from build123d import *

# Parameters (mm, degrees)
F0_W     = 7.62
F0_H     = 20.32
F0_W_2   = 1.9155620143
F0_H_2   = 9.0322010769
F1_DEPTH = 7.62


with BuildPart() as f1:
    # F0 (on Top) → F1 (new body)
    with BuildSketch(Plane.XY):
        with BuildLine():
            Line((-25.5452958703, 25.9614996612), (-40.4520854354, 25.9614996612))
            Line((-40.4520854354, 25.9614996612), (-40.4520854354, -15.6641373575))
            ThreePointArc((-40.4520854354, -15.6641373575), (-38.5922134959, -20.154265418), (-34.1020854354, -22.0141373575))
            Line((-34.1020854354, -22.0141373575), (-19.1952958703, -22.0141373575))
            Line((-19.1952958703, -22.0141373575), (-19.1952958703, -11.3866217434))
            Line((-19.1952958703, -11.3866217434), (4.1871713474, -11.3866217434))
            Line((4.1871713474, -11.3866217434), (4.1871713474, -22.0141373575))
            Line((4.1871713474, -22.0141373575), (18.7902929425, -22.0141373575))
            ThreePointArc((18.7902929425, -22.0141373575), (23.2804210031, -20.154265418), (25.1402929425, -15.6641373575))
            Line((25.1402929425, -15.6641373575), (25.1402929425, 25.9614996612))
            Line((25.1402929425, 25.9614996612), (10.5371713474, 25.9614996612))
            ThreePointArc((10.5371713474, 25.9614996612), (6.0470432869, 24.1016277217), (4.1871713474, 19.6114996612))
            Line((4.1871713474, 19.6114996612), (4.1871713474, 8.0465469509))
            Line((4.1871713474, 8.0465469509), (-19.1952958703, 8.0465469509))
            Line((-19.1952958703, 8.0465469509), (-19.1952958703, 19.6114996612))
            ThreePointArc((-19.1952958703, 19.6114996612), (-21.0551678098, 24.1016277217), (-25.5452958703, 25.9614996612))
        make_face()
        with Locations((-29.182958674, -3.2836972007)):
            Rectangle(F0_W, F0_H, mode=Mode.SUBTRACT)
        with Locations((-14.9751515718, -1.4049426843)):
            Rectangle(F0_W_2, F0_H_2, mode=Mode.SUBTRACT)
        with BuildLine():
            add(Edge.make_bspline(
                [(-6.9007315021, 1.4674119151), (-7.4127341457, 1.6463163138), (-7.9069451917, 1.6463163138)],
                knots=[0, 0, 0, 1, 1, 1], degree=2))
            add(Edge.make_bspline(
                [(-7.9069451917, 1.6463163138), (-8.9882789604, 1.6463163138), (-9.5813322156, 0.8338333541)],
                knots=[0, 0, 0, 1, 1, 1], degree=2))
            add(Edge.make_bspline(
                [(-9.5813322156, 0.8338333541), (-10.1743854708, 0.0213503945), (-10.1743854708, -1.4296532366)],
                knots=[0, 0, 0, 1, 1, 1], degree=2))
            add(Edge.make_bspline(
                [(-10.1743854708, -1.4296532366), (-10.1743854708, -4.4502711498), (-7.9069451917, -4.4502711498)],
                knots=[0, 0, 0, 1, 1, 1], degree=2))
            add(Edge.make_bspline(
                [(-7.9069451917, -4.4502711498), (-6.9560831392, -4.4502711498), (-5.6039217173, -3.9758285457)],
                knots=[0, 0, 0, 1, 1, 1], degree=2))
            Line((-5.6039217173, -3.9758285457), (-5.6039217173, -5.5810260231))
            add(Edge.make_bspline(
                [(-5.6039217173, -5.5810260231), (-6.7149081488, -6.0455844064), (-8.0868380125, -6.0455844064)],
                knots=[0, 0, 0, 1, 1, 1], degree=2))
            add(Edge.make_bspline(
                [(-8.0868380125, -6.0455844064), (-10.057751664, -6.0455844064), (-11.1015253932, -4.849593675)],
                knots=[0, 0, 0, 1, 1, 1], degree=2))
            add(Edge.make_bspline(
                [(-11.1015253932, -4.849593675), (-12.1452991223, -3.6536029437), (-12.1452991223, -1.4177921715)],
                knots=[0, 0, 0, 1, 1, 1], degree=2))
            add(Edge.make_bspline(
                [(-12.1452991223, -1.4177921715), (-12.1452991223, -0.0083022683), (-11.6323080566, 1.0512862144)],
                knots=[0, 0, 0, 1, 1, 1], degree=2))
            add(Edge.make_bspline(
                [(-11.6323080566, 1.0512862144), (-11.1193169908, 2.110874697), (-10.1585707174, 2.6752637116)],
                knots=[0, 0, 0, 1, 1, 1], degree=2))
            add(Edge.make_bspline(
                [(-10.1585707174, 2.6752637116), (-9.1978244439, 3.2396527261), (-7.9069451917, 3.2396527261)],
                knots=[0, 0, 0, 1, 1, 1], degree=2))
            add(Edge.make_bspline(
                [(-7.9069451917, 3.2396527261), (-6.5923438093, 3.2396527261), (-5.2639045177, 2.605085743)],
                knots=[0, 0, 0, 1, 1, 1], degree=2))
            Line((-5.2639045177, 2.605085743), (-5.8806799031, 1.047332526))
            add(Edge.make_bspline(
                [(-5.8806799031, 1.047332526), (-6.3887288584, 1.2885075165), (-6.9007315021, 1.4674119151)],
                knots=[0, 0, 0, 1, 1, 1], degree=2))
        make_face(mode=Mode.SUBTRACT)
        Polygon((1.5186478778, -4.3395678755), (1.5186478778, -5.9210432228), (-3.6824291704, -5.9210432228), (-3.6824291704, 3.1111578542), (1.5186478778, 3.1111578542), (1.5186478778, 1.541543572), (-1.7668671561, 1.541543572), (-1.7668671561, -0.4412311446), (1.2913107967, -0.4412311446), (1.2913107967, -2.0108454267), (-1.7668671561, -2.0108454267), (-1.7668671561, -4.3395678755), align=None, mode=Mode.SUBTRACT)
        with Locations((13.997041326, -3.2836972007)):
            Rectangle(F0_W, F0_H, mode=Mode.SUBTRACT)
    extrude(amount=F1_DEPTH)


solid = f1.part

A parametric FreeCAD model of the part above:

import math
import FreeCAD as App
import Part
import Sketcher

V = App.Vector
Q = App.Units.Quantity


def add_polygon(sketch, points):
    """Adds a closed chain of lines whose ends are joined by coincident constraints."""
    first, n = sketch.GeometryCount, len(points)
    for a, b in zip(points, points[1:] + points[:1]):
        sketch.addGeometry(Part.LineSegment(App.Vector(*a, 0), App.Vector(*b, 0)), False)
    for i in range(n):
        sketch.addConstraint(Sketcher.Constraint("Coincident", first + i, 2, first + (i + 1) % n, 1))

doc = App.newDocument("Part")
body = doc.addObject("PartDesign::Body", "Body")

sketch1 = body.newObject("Sketcher::SketchObject", "Sketch")
sketch1.AttachmentSupport = (doc.getObject("XY_Plane"), [""])
sketch1.MapMode = "FlatFace"
sketch1.addGeometry(Part.LineSegment(V(-25.545296, 25.9615, 0), V(-40.452085, 25.9615, 0)), False)
sketch1.addGeometry(Part.LineSegment(V(-40.452085, 25.9615, 0), V(-40.452085, -15.664137, 0)), False)
sketch1.addGeometry(Part.ArcOfCircle(Part.Circle(V(-34.102085, -15.664137, 0), V(0, 0, 1), 6.35), math.radians(180), math.radians(270)), False)
sketch1.addGeometry(Part.LineSegment(V(-34.102085, -22.014137, 0), V(-19.195296, -22.014137, 0)), False)
sketch1.addGeometry(Part.LineSegment(V(-19.195296, -22.014137, 0), V(-19.195296, -11.386622, 0)), False)
sketch1.addGeometry(Part.LineSegment(V(-19.195296, -11.386622, 0), V(4.187171, -11.386622, 0)), False)
sketch1.addGeometry(Part.LineSegment(V(4.187171, -11.386622, 0), V(4.187171, -22.014137, 0)), False)
sketch1.addGeometry(Part.LineSegment(V(4.187171, -22.014137, 0), V(18.790293, -22.014137, 0)), False)
sketch1.addGeometry(Part.ArcOfCircle(Part.Circle(V(18.790293, -15.664137, 0), V(0, 0, 1), 6.35), math.radians(-90), math.radians(0)), False)
sketch1.addGeometry(Part.LineSegment(V(25.140293, -15.664137, 0), V(25.140293, 25.9615, 0)), False)
sketch1.addGeometry(Part.LineSegment(V(25.140293, 25.9615, 0), V(10.537171, 25.9615, 0)), False)
sketch1.addGeometry(Part.ArcOfCircle(Part.Circle(V(10.537171, 19.6115, 0), V(0, 0, 1), 6.35), math.radians(90), math.radians(180)), False)
sketch1.addGeometry(Part.LineSegment(V(4.187171, 19.6115, 0), V(4.187171, 8.046547, 0)), False)
sketch1.addGeometry(Part.LineSegment(V(4.187171, 8.046547, 0), V(-19.195296, 8.046547, 0)), False)
sketch1.addGeometry(Part.LineSegment(V(-19.195296, 8.046547, 0), V(-19.195296, 19.6115, 0)), False)
sketch1.addGeometry(Part.ArcOfCircle(Part.Circle(V(-25.545296, 19.6115, 0), V(0, 0, 1), 6.35), math.radians(0), math.radians(90)), False)
add_polygon(sketch1, [(-25.372959, -13.443697), (-32.992959, -13.443697), (-32.992959, 6.876303), (-25.372959, 6.876303)])
add_polygon(sketch1, [(17.807041, -13.443697), (10.187041, -13.443697), (10.187041, 6.876303), (17.807041, 6.876303)])
add_polygon(sketch1, [(-14.017371, -5.921043), (-15.932933, -5.921043), (-15.932933, 3.111158), (-14.017371, 3.111158)])
sketch1.addGeometry(Part.BSplineCurve([V(-5.88068, 1.047333, 0), V(-6.388729, 1.288508, 0), V(-6.900732, 1.467412, 0)], [3, 3], [0, 1], False, 2, [1, 1, 1], False), False)
sketch1.addGeometry(Part.BSplineCurve([V(-6.900732, 1.467412, 0), V(-7.412734, 1.646316, 0), V(-8.988279, 1.646316, 0), V(-9.581332, 0.833833, 0)], [3, 1, 3], [0, 1, 3.188], False, 2, [1, 1, 1, 1], False), False)
sketch1.addGeometry(Part.BSplineCurve([V(-9.581332, 0.833833, 0), V(-10.174385, 0.02135, 0), V(-10.174385, -4.450271, 0), V(-6.956083, -4.450271, 0), V(-5.603922, -3.975829, 0)], [3, 1, 1, 3], [0, 1, 3.081743869, 3.954733234], False, 2, [1, 1, 1, 1, 1], False), False)
sketch1.addGeometry(Part.LineSegment(V(-5.603922, -3.975829, 0), V(-5.603922, -5.581026, 0)), False)
sketch1.addGeometry(Part.BSplineCurve([V(-5.603922, -5.581026, 0), V(-6.714908, -6.045584, 0), V(-10.057752, -6.045584, 0), V(-11.101525, -4.849594, 0)], [3, 1, 3], [0, 1, 2.436599424], False, 2, [1, 1, 1, 1], False), False)
sketch1.addGeometry(Part.BSplineCurve([V(-11.101525, -4.849594, 0), V(-12.145299, -3.653603, 0), V(-12.145299, -0.008302, 0), V(-11.632308, 1.051286, 0)], [3, 1, 3], [0, 1, 1.630415561], False, 2, [1, 1, 1, 1], False), False)
sketch1.addGeometry(Part.BSplineCurve([V(-11.632308, 1.051286, 0), V(-11.119317, 2.110875, 0), V(-10.158571, 2.675264, 0)], [3, 3], [0, 1], False, 2, [1, 1, 1], False), False)
sketch1.addGeometry(Part.BSplineCurve([V(-10.158571, 2.675264, 0), V(-9.197824, 3.239653, 0), V(-6.592344, 3.239653, 0), V(-5.263905, 2.605086, 0)], [3, 1, 3], [0, 1, 2.018376723], False, 2, [1, 1, 1, 1], False), False)
sketch1.addGeometry(Part.LineSegment(V(-5.263905, 2.605086, 0), V(-5.88068, 1.047333, 0)), False)
add_polygon(sketch1, [(-1.766867, -4.339568), (1.518648, -4.339568), (1.518648, -5.921043), (-3.682429, -5.921043), (-3.682429, 3.111158), (1.518648, 3.111158), (1.518648, 1.541544), (-1.766867, 1.541544), (-1.766867, -0.441231), (1.291311, -0.441231), (1.291311, -2.010845), (-1.766867, -2.010845)])
sketch1.addConstraint([
    Sketcher.Constraint("Block", 28),
    Sketcher.Constraint("Block", 29),
    Sketcher.Constraint("Block", 30),
    Sketcher.Constraint("Block", 32),
    Sketcher.Constraint("Block", 33),
    Sketcher.Constraint("Block", 34),
    Sketcher.Constraint("Block", 35),
    Sketcher.Constraint("Coincident", 0, 2, 1, 1),
    Sketcher.Constraint("Tangent", 1, 2, 2, 1),
    Sketcher.Constraint("Tangent", 2, 2, 3, 1),
    Sketcher.Constraint("Coincident", 3, 2, 4, 1),
    Sketcher.Constraint("Coincident", 4, 2, 5, 1),
    Sketcher.Constraint("Coincident", 5, 2, 6, 1),
    Sketcher.Constraint("Coincident", 6, 2, 7, 1),
    Sketcher.Constraint("Tangent", 7, 2, 8, 1),
    Sketcher.Constraint("Tangent", 8, 2, 9, 1),
    Sketcher.Constraint("Coincident", 9, 2, 10, 1),
    Sketcher.Constraint("Tangent", 10, 2, 11, 1),
    Sketcher.Constraint("Tangent", 11, 2, 12, 1),
    Sketcher.Constraint("Coincident", 12, 2, 13, 1),
    Sketcher.Constraint("Coincident", 13, 2, 14, 1),
    Sketcher.Constraint("Tangent", 14, 2, 15, 1),
    Sketcher.Constraint("Tangent", 15, 2, 0, 1),
    Sketcher.Constraint("Coincident", 30, 2, 31, 1),
    Sketcher.Constraint("Coincident", 31, 2, 32, 1),
    Sketcher.Constraint("Coincident", 35, 2, 36, 1),
    Sketcher.Constraint("Coincident", 36, 2, 28, 1),
    Sketcher.Constraint("Horizontal", 0),
    Sketcher.Constraint("Vertical", 1),
    Sketcher.Constraint("Horizontal", 3),
    Sketcher.Constraint("Vertical", 4),
    Sketcher.Constraint("Horizontal", 5),
    Sketcher.Constraint("Vertical", 6),
    Sketcher.Constraint("Horizontal", 7),
    Sketcher.Constraint("Vertical", 9),
    Sketcher.Constraint("Horizontal", 10),
    Sketcher.Constraint("Vertical", 12),
    Sketcher.Constraint("Horizontal", 13),
    Sketcher.Constraint("Vertical", 14),
    Sketcher.Constraint("Horizontal", 16),
    Sketcher.Constraint("Vertical", 17),
    Sketcher.Constraint("Horizontal", 18),
    Sketcher.Constraint("Vertical", 19),
    Sketcher.Constraint("Horizontal", 20),
    Sketcher.Constraint("Vertical", 21),
    Sketcher.Constraint("Horizontal", 22),
    Sketcher.Constraint("Vertical", 23),
    Sketcher.Constraint("Horizontal", 24),
    Sketcher.Constraint("Vertical", 25),
    Sketcher.Constraint("Horizontal", 26),
    Sketcher.Constraint("Vertical", 27),
    Sketcher.Constraint("Horizontal", 37),
    Sketcher.Constraint("Vertical", 38),
    Sketcher.Constraint("Horizontal", 39),
    Sketcher.Constraint("Vertical", 40),
    Sketcher.Constraint("Horizontal", 41),
    Sketcher.Constraint("Vertical", 42),
    Sketcher.Constraint("Horizontal", 43),
    Sketcher.Constraint("Vertical", 44),
    Sketcher.Constraint("Horizontal", 45),
    Sketcher.Constraint("Vertical", 46),
    Sketcher.Constraint("Horizontal", 47),
    Sketcher.Constraint("Vertical", 48),
    Sketcher.Constraint("Equal", 2, 8),
    Sketcher.Constraint("Equal", 8, 11),
    Sketcher.Constraint("Equal", 11, 15),
    Sketcher.Constraint("Horizontal", 2, 3, 8, 3),
    Sketcher.Constraint("Horizontal", 11, 3, 15, 3),
    Sketcher.Constraint("Horizontal", 19, 2, 20, 2),
    Sketcher.Constraint("Horizontal", 18, 2, 21, 2),
    Sketcher.Constraint("Horizontal", 27, 2, 38, 2),
    Sketcher.Constraint("Horizontal", 26, 2, 40, 2),
    Sketcher.Constraint("Vertical", 6, 2, 11, 2),
    Sketcher.Constraint("Vertical", 4, 2, 13, 2),
    Sketcher.Constraint("Vertical", 38, 2, 41, 2),
    Sketcher.Constraint("Vertical", 44, 2, 47, 2),
    Sketcher.Constraint("Equal", 18, 20),
    Sketcher.Constraint("Equal", 42, 46),
    Sketcher.Constraint("Radius", 2, Q("0.25 in")),
    Sketcher.Constraint("DistanceX", 16, 2, 16, 1, Q("0.3 in")),
    Sketcher.Constraint("DistanceY", 17, 1, 17, 2, Q("0.8 in")),
    Sketcher.Constraint("DistanceY", 25, 1, 25, 2, 9.032201),
    Sketcher.Constraint("DistanceX", 0, 2, 0, 1, 14.90679),
    Sketcher.Constraint("DistanceX", 7, 1, 7, 2, 14.603122),
    Sketcher.Constraint("DistanceY", -1, 1, 11, 3, 19.6115),
    Sketcher.Constraint("DistanceY", 37, 2, 36, 2, 5.3869),
    Sketcher.Constraint("DistanceX", 39, 2, 5, 2, 7.869601),
    Sketcher.Constraint("DistanceX", 5, 1, 5, 2, 23.382467),
    Sketcher.Constraint("DistanceX", 24, 2, 24, 1, 1.915562),
    Sketcher.Constraint("DistanceX", 37, 1, 37, 2, 3.285515),
    Sketcher.Constraint("DistanceX", 39, 2, 39, 1, 5.201077),
    Sketcher.Constraint("DistanceX", 45, 1, 45, 2, 3.058178),
    Sketcher.Constraint("DistanceY", 1, 2, 1, 1, 41.625637),
    Sketcher.Constraint("DistanceY", 4, 1, 4, 2, 10.627516),
    Sketcher.Constraint("DistanceY", 12, 2, 12, 1, 11.564953),
    Sketcher.Constraint("DistanceY", 38, 2, 38, 1, 1.581475),
    Sketcher.Constraint("DistanceY", 42, 2, 42, 1, 1.569614),
    Sketcher.Constraint("DistanceY", 44, 2, 44, 1, 1.982775),
    Sketcher.Constraint("DistanceX", -1, 1, 11, 3, 10.537171),
    Sketcher.Constraint("DistanceX", 16, 2, -1, 1, 32.992959),
    Sketcher.Constraint("DistanceX", -1, 1, 20, 2, 10.187041),
    Sketcher.Constraint("DistanceX", 26, 2, -1, 1, 14.017371),
    Sketcher.Constraint("DistanceY", 2, 3, 16, 2, 2.22044),
])
pad1 = body.newObject("PartDesign::Pad", "Pad")
pad1.Profile = sketch1
pad1.Length = Q("0.3 in")

doc.recompute()
